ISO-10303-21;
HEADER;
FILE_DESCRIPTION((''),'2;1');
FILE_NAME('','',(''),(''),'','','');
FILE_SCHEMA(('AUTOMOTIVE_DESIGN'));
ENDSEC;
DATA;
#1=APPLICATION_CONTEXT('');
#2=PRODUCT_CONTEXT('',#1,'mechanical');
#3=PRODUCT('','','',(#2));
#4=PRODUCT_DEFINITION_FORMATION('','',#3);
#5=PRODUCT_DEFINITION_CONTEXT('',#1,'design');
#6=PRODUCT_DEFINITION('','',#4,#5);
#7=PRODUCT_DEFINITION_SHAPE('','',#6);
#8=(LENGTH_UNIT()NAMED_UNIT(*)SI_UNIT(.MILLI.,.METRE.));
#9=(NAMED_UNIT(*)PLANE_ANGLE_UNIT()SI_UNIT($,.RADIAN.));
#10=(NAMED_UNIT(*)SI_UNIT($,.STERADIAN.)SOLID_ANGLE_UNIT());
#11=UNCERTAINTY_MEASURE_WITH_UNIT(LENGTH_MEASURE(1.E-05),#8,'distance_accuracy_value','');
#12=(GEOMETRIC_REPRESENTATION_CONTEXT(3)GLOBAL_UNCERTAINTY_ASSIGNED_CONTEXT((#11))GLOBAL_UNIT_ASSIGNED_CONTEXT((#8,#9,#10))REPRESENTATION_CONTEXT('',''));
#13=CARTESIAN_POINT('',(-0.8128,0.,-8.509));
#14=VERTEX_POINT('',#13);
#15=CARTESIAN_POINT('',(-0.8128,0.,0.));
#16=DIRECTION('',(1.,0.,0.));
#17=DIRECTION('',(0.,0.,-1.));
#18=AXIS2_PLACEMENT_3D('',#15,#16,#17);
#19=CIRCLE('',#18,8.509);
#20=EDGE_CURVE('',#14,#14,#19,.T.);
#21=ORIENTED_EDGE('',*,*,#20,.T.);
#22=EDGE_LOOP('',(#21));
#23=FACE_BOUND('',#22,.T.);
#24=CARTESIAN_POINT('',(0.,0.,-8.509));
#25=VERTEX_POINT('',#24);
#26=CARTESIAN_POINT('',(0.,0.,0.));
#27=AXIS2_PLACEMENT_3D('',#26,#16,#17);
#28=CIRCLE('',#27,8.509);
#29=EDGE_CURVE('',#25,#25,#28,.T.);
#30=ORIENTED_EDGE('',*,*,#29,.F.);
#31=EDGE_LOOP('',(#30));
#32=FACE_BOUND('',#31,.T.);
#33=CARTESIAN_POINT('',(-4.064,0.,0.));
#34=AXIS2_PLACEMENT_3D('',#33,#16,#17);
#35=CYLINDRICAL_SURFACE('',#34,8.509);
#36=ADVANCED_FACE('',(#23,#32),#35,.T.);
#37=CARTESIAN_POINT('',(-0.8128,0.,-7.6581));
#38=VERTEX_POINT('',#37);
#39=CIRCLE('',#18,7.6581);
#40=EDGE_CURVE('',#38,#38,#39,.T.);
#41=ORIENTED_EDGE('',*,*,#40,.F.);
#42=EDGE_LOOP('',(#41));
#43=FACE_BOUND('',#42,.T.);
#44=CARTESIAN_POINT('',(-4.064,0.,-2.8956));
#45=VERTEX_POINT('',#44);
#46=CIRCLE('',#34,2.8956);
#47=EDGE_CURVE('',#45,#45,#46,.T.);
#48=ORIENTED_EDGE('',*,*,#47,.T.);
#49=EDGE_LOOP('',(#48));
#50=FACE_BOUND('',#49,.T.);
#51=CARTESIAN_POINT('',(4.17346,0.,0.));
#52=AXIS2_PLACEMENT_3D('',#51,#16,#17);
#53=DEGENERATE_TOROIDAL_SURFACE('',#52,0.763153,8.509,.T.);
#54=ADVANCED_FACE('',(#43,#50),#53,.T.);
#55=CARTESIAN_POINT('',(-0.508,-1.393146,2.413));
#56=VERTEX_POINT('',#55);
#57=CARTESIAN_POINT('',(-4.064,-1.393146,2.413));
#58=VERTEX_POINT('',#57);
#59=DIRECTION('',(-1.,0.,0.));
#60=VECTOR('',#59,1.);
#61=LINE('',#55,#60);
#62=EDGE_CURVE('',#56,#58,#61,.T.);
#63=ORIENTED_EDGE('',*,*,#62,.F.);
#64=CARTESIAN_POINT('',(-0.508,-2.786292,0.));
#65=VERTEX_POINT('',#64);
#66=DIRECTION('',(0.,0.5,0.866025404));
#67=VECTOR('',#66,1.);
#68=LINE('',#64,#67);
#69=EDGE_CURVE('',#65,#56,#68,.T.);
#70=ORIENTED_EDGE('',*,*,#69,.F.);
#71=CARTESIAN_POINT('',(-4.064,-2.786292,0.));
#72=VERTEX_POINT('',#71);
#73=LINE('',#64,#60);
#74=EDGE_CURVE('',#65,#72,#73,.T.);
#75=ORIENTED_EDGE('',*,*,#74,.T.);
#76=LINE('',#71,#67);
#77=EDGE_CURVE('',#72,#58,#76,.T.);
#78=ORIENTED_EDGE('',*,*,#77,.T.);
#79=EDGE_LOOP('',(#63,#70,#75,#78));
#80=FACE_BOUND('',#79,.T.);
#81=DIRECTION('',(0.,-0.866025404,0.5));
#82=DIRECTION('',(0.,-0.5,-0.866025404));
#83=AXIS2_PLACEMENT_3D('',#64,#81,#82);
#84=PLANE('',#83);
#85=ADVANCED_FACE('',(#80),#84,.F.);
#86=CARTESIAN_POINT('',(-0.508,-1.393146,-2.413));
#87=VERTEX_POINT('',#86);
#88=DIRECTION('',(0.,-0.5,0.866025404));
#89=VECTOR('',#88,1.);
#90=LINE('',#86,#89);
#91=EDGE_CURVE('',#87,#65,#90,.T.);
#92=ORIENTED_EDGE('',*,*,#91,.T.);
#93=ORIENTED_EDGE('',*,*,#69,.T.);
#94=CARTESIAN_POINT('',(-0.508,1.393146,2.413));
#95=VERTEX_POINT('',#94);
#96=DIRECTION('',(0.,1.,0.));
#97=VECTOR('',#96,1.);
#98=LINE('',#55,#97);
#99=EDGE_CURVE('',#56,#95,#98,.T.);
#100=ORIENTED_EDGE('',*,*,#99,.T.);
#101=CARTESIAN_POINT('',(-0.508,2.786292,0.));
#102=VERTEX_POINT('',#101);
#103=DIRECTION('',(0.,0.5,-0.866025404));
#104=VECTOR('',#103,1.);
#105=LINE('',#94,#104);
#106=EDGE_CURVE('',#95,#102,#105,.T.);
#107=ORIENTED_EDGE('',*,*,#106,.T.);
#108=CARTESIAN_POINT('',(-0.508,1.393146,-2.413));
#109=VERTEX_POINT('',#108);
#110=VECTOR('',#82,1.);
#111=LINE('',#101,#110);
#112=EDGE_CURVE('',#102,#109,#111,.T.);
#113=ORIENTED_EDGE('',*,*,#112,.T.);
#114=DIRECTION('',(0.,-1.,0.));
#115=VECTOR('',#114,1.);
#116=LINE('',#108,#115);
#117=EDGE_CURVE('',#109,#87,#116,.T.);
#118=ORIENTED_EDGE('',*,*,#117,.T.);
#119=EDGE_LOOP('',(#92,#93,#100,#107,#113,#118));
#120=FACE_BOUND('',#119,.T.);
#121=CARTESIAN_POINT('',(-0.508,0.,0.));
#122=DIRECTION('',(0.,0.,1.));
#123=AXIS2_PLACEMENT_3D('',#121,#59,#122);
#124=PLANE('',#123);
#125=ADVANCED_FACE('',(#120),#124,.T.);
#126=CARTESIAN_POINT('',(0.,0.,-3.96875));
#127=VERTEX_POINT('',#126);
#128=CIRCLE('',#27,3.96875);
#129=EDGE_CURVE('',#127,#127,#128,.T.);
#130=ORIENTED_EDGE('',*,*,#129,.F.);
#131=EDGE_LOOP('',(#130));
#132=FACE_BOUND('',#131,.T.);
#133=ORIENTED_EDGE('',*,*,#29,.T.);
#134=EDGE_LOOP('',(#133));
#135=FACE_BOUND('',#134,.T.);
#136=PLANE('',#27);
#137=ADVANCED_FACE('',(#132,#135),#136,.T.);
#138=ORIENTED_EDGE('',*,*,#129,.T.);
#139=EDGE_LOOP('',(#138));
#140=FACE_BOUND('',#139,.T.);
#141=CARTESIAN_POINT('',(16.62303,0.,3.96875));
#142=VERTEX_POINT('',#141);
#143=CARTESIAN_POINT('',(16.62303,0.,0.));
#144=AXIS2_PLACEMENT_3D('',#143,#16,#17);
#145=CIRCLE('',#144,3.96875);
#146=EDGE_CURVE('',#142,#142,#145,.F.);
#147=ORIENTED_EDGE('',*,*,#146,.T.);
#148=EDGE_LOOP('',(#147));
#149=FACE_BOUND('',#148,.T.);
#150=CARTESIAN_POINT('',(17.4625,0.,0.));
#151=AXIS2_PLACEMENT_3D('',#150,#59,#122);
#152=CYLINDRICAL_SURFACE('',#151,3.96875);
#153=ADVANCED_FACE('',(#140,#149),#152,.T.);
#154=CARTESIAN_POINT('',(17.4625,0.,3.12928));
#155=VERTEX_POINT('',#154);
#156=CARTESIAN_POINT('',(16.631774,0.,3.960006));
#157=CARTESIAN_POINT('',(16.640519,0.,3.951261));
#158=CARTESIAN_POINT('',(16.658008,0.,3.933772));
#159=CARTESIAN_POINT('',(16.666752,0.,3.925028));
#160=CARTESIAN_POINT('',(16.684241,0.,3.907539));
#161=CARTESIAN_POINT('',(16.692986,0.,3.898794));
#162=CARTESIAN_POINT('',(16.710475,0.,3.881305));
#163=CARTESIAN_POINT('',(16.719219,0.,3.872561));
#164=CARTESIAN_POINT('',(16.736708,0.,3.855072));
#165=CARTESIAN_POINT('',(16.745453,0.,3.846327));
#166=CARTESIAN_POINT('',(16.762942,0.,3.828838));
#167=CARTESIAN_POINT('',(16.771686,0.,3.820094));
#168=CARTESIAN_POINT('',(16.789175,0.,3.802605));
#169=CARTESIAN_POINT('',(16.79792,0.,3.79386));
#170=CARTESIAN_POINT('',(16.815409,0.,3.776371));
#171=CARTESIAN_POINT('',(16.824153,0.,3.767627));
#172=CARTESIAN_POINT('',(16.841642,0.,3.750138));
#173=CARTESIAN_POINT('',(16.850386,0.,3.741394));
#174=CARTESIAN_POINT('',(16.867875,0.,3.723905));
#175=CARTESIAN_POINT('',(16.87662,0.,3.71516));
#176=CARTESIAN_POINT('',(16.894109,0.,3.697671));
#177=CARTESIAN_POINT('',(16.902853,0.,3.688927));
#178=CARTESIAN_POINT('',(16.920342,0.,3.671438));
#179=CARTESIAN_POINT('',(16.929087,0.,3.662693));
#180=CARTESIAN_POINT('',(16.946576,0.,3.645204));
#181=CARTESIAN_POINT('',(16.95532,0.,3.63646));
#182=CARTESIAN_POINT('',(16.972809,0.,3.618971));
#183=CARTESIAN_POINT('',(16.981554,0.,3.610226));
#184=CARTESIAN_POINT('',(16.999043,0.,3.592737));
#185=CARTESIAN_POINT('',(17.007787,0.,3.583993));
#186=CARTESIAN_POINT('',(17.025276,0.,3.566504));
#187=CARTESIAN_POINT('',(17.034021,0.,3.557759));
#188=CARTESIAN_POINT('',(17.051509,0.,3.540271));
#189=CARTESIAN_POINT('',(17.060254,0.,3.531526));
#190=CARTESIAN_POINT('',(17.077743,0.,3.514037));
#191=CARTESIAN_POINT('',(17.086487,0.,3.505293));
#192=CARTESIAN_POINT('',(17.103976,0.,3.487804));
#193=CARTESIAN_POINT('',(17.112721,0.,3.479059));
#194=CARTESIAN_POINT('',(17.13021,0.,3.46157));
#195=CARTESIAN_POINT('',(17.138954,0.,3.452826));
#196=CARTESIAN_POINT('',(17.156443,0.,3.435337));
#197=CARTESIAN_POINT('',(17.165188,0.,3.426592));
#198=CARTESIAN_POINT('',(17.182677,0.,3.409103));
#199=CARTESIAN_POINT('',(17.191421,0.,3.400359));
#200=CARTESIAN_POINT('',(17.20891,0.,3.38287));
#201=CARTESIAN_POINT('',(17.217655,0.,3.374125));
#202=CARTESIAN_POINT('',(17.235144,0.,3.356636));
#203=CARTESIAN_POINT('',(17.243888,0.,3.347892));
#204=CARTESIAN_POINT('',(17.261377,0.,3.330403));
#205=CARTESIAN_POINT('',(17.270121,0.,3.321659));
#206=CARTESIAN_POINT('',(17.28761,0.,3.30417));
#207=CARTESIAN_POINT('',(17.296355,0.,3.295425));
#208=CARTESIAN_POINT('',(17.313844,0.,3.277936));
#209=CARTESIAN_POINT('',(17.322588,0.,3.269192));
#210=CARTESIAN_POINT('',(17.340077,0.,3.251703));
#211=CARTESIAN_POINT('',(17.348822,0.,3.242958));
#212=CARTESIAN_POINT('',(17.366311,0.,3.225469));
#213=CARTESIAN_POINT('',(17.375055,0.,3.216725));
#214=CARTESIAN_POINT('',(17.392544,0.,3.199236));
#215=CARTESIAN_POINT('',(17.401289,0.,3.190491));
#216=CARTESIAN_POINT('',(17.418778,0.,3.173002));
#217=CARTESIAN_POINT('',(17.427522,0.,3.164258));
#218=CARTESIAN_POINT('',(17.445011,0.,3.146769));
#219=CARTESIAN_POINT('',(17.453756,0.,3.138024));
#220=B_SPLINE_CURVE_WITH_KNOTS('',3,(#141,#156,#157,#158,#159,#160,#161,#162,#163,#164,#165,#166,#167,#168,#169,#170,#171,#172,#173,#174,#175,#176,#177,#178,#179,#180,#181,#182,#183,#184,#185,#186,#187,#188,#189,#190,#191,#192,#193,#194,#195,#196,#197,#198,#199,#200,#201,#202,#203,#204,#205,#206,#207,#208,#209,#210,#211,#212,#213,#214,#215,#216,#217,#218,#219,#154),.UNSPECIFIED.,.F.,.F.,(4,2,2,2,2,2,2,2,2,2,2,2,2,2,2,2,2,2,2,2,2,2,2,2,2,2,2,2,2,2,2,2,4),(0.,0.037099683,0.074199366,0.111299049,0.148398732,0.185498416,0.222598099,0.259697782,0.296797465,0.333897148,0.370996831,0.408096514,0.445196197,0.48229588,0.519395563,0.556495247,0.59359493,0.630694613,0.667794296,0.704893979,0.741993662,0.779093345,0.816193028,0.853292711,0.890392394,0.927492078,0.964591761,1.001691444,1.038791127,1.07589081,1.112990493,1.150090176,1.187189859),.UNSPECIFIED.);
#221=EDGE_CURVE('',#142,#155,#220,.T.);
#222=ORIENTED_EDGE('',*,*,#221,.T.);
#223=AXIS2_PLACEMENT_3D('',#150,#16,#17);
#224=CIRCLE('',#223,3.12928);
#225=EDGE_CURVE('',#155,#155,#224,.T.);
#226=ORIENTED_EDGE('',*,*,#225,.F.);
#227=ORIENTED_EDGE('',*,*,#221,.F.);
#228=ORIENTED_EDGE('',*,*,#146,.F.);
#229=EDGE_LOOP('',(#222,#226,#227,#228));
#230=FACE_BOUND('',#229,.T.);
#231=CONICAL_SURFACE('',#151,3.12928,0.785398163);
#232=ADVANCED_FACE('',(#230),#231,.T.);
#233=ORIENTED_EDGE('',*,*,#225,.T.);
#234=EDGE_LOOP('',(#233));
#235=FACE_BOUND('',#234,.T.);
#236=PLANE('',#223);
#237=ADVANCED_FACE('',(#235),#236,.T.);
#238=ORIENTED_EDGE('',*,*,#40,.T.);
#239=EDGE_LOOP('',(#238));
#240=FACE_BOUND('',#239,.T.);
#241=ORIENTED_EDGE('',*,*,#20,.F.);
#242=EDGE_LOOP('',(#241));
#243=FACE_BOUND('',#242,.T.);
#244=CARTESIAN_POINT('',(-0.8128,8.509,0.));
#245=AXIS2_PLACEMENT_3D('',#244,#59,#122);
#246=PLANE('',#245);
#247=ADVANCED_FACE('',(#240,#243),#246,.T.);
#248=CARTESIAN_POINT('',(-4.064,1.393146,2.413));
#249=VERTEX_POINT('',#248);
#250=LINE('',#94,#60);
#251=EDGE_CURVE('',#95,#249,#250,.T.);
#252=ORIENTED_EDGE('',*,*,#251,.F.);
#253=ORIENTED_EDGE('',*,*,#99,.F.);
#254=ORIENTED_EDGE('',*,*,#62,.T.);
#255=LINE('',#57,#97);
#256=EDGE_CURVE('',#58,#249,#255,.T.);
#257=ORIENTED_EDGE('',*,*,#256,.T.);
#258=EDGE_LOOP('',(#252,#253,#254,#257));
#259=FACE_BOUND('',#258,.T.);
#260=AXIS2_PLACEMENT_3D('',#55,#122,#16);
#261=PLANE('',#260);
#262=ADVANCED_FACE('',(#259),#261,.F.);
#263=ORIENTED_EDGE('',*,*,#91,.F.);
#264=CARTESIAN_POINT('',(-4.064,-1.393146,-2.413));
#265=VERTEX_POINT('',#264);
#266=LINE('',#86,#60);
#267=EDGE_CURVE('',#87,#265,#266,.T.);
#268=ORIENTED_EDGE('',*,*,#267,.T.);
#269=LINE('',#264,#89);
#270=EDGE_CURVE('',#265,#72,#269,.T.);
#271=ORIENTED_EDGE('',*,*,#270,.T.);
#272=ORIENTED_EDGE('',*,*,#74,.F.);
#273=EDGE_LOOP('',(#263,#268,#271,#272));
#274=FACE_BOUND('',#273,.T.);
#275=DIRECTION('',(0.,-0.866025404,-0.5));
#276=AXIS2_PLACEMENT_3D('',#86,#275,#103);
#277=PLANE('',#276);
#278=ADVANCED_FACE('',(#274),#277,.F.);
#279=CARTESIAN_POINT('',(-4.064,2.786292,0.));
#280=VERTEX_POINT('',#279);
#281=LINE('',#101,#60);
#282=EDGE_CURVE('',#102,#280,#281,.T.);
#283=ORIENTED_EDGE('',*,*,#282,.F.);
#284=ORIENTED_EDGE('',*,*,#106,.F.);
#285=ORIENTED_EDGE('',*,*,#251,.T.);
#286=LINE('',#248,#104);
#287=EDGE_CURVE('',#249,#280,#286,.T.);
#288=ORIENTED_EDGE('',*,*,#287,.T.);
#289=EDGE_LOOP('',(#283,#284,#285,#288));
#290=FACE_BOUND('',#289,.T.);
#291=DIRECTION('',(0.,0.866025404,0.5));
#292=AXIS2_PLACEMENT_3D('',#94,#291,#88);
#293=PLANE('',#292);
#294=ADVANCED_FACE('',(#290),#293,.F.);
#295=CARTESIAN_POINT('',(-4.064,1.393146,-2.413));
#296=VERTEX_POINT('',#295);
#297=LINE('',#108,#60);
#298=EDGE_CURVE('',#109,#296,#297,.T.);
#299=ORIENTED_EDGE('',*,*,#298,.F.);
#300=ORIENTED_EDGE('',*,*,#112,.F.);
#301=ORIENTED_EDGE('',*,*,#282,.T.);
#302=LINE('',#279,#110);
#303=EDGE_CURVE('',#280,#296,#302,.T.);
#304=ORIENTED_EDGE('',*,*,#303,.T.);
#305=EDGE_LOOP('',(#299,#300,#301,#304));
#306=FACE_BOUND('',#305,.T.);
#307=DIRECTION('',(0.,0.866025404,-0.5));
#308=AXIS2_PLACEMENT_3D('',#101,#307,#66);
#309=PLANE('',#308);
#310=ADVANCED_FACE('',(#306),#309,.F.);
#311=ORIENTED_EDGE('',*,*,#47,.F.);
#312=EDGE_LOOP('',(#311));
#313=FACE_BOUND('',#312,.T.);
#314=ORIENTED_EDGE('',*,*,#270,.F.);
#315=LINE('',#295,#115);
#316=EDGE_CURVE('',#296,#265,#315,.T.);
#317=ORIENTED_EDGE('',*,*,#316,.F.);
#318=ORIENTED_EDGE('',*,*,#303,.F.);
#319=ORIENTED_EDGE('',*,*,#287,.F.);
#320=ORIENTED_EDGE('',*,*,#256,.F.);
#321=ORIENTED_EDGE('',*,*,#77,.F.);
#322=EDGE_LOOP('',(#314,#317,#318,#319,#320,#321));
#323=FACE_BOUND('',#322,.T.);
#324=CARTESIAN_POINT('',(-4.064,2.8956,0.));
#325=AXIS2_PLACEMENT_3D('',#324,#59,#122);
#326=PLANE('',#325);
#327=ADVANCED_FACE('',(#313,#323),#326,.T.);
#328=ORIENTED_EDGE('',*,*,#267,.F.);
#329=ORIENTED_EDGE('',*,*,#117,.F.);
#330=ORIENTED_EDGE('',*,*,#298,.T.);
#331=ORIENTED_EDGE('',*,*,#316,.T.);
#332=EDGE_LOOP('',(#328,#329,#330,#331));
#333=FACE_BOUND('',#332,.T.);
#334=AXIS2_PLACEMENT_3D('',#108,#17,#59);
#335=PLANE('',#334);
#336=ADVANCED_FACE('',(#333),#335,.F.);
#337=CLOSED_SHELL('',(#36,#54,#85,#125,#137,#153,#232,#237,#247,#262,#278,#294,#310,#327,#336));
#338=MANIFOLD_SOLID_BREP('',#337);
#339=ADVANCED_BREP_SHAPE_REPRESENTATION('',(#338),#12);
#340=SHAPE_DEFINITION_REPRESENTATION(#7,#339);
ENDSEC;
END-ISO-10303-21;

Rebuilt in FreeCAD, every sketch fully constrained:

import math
import FreeCAD as App
import Part
import Sketcher
Q = App.Units.Quantity


def edges_at(feature, points):
    """Names of the edges that pass closest to the given points."""
    edges = feature.Shape.Edges
    near = lambda p: min(range(len(edges)), key=lambda i: edges[i].distToShape(Part.Vertex(*p))[0])
    return sorted({f"Edge{near(p) + 1}" for p in points})

doc = App.newDocument("Part")
body = doc.addObject("PartDesign::Body", "Body")

sketch1 = doc.addObject("Sketcher::SketchObject", "Sketch")
body.addObject(sketch1)
sketch1.AttachmentSupport = (doc.XY_Plane, [""])
sketch1.MapMode = "FlatFace"
sketch1.addGeometry(Part.LineSegment(App.Vector(-4.1, 2.9, 0), App.Vector(-4.1, 0, 0)), False)
sketch1.addGeometry(Part.LineSegment(App.Vector(-4.1, 0, 0), App.Vector(0, 0, 0)), False)
sketch1.addGeometry(Part.LineSegment(App.Vector(0, 0, 0), App.Vector(0, 8.5, 0)), False)
sketch1.addGeometry(Part.LineSegment(App.Vector(0, 8.5, 0), App.Vector(-0.8, 8.5, 0)), False)
sketch1.addGeometry(Part.LineSegment(App.Vector(-0.8, 8.5, 0), App.Vector(-0.8, 7.7, 0)), False)
sketch1.addGeometry(Part.ArcOfCircle(Part.Circle(App.Vector(4.2, 0.8, 0), App.Vector(0, 0, 1), 8.5), math.radians(126), math.radians(165)), False)
sketch1.addConstraint(Sketcher.Constraint("Coincident", 0, 2, 1, 1))
sketch1.addConstraint(Sketcher.Constraint("Coincident", 1, 2, 2, 1))
sketch1.addConstraint(Sketcher.Constraint("Coincident", 2, 2, 3, 1))
sketch1.addConstraint(Sketcher.Constraint("Coincident", 3, 2, 4, 1))
sketch1.addConstraint(Sketcher.Constraint("Coincident", 4, 2, 5, 1))
sketch1.addConstraint(Sketcher.Constraint("Coincident", 5, 2, 0, 1))
sketch1.addConstraint(Sketcher.Constraint("Vertical", 0))
sketch1.addConstraint(Sketcher.Constraint("Horizontal", 1))
sketch1.addConstraint(Sketcher.Constraint("Vertical", 2))
sketch1.addConstraint(Sketcher.Constraint("Horizontal", 3))
sketch1.addConstraint(Sketcher.Constraint("Vertical", 4))
sketch1.addConstraint(Sketcher.Constraint("Coincident", 1, 2, -1, 1))
sketch1.addConstraint(Sketcher.Constraint("Radius", 5, Q("0.335 in")))
sketch1.addConstraint(Sketcher.Constraint("DistanceX", 1, 1, 1, 2, Q("0.16 in")))
sketch1.addConstraint(Sketcher.Constraint("DistanceX", 3, 2, 3, 1, Q("0.032 in")))
sketch1.addConstraint(Sketcher.Constraint("DistanceY", 0, 2, 0, 1, Q("0.114 in")))
sketch1.addConstraint(Sketcher.Constraint("DistanceY", 2, 1, 2, 2, Q("0.335 in")))
sketch1.addConstraint(Sketcher.Constraint("DistanceY", 4, 2, 4, 1, Q("0.0335 in")))
revolution = doc.addObject("PartDesign::Revolution", "Revolution")
body.addObject(revolution)
revolution.Profile = sketch1
revolution.ReferenceAxis = (sketch1, ["H_Axis"])
revolution.Angle = 360

sketch2 = doc.addObject("Sketcher::SketchObject", "Sketch001")
body.addObject(sketch2)
sketch2.AttachmentSupport = (doc.YZ_Plane, [""])
sketch2.MapMode = "FlatFace"
sketch2.addGeometry(Part.Circle(App.Vector(0, 0, 0), App.Vector(0, 0, 1), 4), False)
sketch2.addConstraint(Sketcher.Constraint("Coincident", 0, 3, -1, 1))
sketch2.addConstraint(Sketcher.Constraint("Diameter", 0, Q("0.3125 in")))
pad1 = doc.addObject("PartDesign::Pad", "Pad")
body.addObject(pad1)
pad1.Profile = sketch2
pad1.Length = Q("0.6875 in")

sketch3 = doc.addObject("Sketcher::SketchObject", "Sketch002")
body.addObject(sketch3)
sketch3.AttachmentSupport = (doc.YZ_Plane, [""])
sketch3.MapMode = "FlatFace"
sketch3.AttachmentOffset = App.Placement(App.Vector(0, 0, -0.16 * 25.4), App.Rotation())
sketch3.addGeometry(Part.LineSegment(App.Vector(-2.8, 0, 0), App.Vector(-1.4, 2.4, 0)), False)
sketch3.addGeometry(Part.LineSegment(App.Vector(-1.4, 2.4, 0), App.Vector(1.4, 2.4, 0)), False)
sketch3.addGeometry(Part.LineSegment(App.Vector(1.4, 2.4, 0), App.Vector(2.8, 0, 0)), False)
sketch3.addGeometry(Part.LineSegment(App.Vector(2.8, 0, 0), App.Vector(1.4, -2.4, 0)), False)
sketch3.addGeometry(Part.LineSegment(App.Vector(1.4, -2.4, 0), App.Vector(-1.4, -2.4, 0)), False)
sketch3.addGeometry(Part.LineSegment(App.Vector(-1.4, -2.4, 0), App.Vector(-2.8, 0, 0)), False)
sketch3.addConstraint(Sketcher.Constraint("Coincident", 0, 2, 1, 1))
sketch3.addConstraint(Sketcher.Constraint("Coincident", 1, 2, 2, 1))
sketch3.addConstraint(Sketcher.Constraint("Coincident", 2, 2, 3, 1))
sketch3.addConstraint(Sketcher.Constraint("Coincident", 3, 2, 4, 1))
sketch3.addConstraint(Sketcher.Constraint("Coincident", 4, 2, 5, 1))
sketch3.addConstraint(Sketcher.Constraint("Coincident", 5, 2, 0, 1))
sketch3.addConstraint(Sketcher.Constraint("Horizontal", 1))
sketch3.addConstraint(Sketcher.Constraint("Horizontal", 4))
sketch3.addConstraint(Sketcher.Constraint("Symmetric", 0, 2, 3, 2, -1, 1))
sketch3.addConstraint(Sketcher.Constraint("Symmetric", 2, 2, 5, 2, -1, 1))
sketch3.addConstraint(Sketcher.Constraint("PointOnObject", 2, 2, -1))
sketch3.addConstraint(Sketcher.Constraint("Parallel", 2, 5))
sketch3.addConstraint(Sketcher.Constraint("Vertical", 1, 2, 3, 2))
sketch3.addConstraint(Sketcher.Constraint("Angle", 0, Q("60 deg")))
sketch3.addConstraint(Sketcher.Constraint("DistanceY", 3, 2, 1, 2, Q("0.19 in")))
sketch3.addConstraint(Sketcher.Constraint("DistanceX", 1, 1, 1, 2, Q("2.786292 mm")))
pocket1 = doc.addObject("PartDesign::Pocket", "Pocket")
body.addObject(pocket1)
pocket1.Profile = sketch3
pocket1.Length = Q("0.14 in")
pocket1.Reversed = True
doc.recompute()

chamfer = doc.addObject("PartDesign::Chamfer", "Chamfer")
body.addObject(chamfer)
chamfer.Base = (pocket1, edges_at(pocket1, [(17.462, 0, 3.969)]))
chamfer.Size = 0.83947

doc.recompute()
